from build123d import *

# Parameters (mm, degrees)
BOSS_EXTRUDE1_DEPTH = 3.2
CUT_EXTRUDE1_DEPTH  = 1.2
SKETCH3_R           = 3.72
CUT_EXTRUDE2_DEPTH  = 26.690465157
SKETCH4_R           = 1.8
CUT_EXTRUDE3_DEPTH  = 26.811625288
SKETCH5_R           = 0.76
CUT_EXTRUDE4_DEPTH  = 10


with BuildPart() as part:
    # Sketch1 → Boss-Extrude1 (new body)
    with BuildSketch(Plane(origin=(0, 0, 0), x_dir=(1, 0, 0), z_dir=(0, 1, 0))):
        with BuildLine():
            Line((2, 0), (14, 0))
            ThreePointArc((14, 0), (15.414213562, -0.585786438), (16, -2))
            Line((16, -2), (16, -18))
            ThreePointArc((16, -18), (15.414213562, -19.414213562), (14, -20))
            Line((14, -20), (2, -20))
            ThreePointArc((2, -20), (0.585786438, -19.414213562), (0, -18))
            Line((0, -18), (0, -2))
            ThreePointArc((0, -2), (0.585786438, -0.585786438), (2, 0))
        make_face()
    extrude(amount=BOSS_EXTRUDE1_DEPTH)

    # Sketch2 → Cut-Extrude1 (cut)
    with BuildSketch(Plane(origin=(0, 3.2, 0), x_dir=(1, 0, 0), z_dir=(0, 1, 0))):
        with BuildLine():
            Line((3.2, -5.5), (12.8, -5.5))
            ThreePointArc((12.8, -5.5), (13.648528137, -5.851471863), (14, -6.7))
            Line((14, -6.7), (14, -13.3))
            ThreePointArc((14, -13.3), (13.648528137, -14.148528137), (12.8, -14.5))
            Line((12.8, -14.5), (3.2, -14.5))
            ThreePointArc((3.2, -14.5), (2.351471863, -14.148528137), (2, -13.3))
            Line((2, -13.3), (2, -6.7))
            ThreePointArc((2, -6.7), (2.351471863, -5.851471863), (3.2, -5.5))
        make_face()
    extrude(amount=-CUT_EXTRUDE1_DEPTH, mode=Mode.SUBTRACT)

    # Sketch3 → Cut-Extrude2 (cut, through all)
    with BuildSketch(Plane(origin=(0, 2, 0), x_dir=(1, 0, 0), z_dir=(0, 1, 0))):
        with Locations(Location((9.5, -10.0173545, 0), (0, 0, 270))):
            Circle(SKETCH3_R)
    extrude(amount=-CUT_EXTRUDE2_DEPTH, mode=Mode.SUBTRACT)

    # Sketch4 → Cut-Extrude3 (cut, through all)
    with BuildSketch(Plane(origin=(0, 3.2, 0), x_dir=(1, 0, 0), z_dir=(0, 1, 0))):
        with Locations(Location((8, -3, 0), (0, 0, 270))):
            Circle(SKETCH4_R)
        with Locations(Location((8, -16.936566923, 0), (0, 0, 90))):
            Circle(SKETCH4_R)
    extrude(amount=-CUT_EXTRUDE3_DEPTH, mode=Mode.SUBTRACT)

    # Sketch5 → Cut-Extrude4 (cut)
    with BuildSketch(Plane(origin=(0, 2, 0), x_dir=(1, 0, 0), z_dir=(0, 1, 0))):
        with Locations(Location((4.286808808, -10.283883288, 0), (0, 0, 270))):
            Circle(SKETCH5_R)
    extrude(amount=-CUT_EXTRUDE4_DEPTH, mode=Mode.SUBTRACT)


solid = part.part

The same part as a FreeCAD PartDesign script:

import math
import FreeCAD as App
import Part
import Sketcher

doc = App.newDocument("Part")
body = doc.addObject("PartDesign::Body", "Body")

sketch1 = body.newObject("Sketcher::SketchObject", "Sketch")
sketch1.AttachmentSupport = (doc.getObject("XZ_Plane"), [""])
sketch1.MapMode = "FlatFace"
sketch1.addGeometry([
    Part.LineSegment(App.Vector(14, 0, 0), App.Vector(2, 0, 0)),
    Part.ArcOfCircle(Part.Circle(App.Vector(2, 2, 0), App.Vector(0, 0, 1), 2), math.radians(-180), math.radians(-90)),
    Part.LineSegment(App.Vector(0, 2, 0), App.Vector(0, 18, 0)),
    Part.ArcOfCircle(Part.Circle(App.Vector(2, 18, 0), App.Vector(0, 0, 1), 2), math.radians(90), math.radians(180)),
    Part.LineSegment(App.Vector(2, 20, 0), App.Vector(14, 20, 0)),
    Part.ArcOfCircle(Part.Circle(App.Vector(14, 18, 0), App.Vector(0, 0, 1), 2), math.radians(0), math.radians(90)),
    Part.LineSegment(App.Vector(16, 18, 0), App.Vector(16, 2, 0)),
    Part.ArcOfCircle(Part.Circle(App.Vector(14, 2, 0), App.Vector(0, 0, 1), 2), math.radians(-90), math.radians(0)),
], False)
sketch1.addConstraint([
    Sketcher.Constraint("Tangent", 0, 2, 1, 2),
    Sketcher.Constraint("Tangent", 1, 1, 2, 1),
    Sketcher.Constraint("Tangent", 2, 2, 3, 2),
    Sketcher.Constraint("Tangent", 3, 1, 4, 1),
    Sketcher.Constraint("Tangent", 4, 2, 5, 2),
    Sketcher.Constraint("Tangent", 5, 1, 6, 1),
    Sketcher.Constraint("Tangent", 6, 2, 7, 2),
    Sketcher.Constraint("Tangent", 7, 1, 0, 1),
    Sketcher.Constraint("Horizontal", 0),
    Sketcher.Constraint("Vertical", 2),
    Sketcher.Constraint("Horizontal", 4),
    Sketcher.Constraint("Vertical", 6),
    Sketcher.Constraint("Equal", 1, 3),
    Sketcher.Constraint("Equal", 3, 5),
    Sketcher.Constraint("Equal", 5, 7),
    Sketcher.Constraint("PointOnObject", 0, 2, -1),
    Sketcher.Constraint("PointOnObject", 1, 1, -2),
    Sketcher.Constraint("Radius", 1, 2.0),
    Sketcher.Constraint("DistanceX", 0, 2, 0, 1, 12.0),
    Sketcher.Constraint("DistanceY", 2, 1, 2, 2, 16.0),
])
pad1 = body.newObject("PartDesign::Pad", "Pad")
pad1.Profile = sketch1
pad1.Length = 3.2
pad1.Reversed = True

sketch2 = body.newObject("Sketcher::SketchObject", "Sketch001")
sketch2.AttachmentSupport = (doc.getObject("XZ_Plane"), [""])
sketch2.MapMode = "FlatFace"
sketch2.AttachmentOffset = App.Placement(App.Vector(0, 0, -3.2), App.Rotation())
sketch2.addGeometry([
    Part.LineSegment(App.Vector(12.8, 5.5, 0), App.Vector(3.2, 5.5, 0)),
    Part.ArcOfCircle(Part.Circle(App.Vector(3.2, 6.7, 0), App.Vector(0, 0, 1), 1.2), math.radians(-180), math.radians(-90)),
    Part.LineSegment(App.Vector(2, 6.7, 0), App.Vector(2, 13.3, 0)),
    Part.ArcOfCircle(Part.Circle(App.Vector(3.2, 13.3, 0), App.Vector(0, 0, 1), 1.2), math.radians(90), math.radians(180)),
    Part.LineSegment(App.Vector(3.2, 14.5, 0), App.Vector(12.8, 14.5, 0)),
    Part.ArcOfCircle(Part.Circle(App.Vector(12.8, 13.3, 0), App.Vector(0, 0, 1), 1.2), math.radians(0), math.radians(90)),
    Part.LineSegment(App.Vector(14, 13.3, 0), App.Vector(14, 6.7, 0)),
    Part.ArcOfCircle(Part.Circle(App.Vector(12.8, 6.7, 0), App.Vector(0, 0, 1), 1.2), math.radians(-90), math.radians(0)),
], False)
sketch2.addConstraint([
    Sketcher.Constraint("Tangent", 0, 2, 1, 2),
    Sketcher.Constraint("Tangent", 1, 1, 2, 1),
    Sketcher.Constraint("Tangent", 2, 2, 3, 2),
    Sketcher.Constraint("Tangent", 3, 1, 4, 1),
    Sketcher.Constraint("Tangent", 4, 2, 5, 2),
    Sketcher.Constraint("Tangent", 5, 1, 6, 1),
    Sketcher.Constraint("Tangent", 6, 2, 7, 2),
    Sketcher.Constraint("Tangent", 7, 1, 0, 1),
    Sketcher.Constraint("Horizontal", 0),
    Sketcher.Constraint("Vertical", 2),
    Sketcher.Constraint("Horizontal", 4),
    Sketcher.Constraint("Vertical", 6),
    Sketcher.Constraint("Equal", 1, 3),
    Sketcher.Constraint("Equal", 3, 5),
    Sketcher.Constraint("Equal", 5, 7),
    Sketcher.Constraint("Radius", 1, 1.2),
    Sketcher.Constraint("DistanceX", 0, 2, 0, 1, 9.6),
    Sketcher.Constraint("DistanceY", 2, 1, 2, 2, 6.6),
    Sketcher.Constraint("DistanceX", -1, 1, 1, 1, 2.0),
    Sketcher.Constraint("DistanceY", -1, 1, 1, 3, 6.7),
])
pocket1 = body.newObject("PartDesign::Pocket", "Pocket")
pocket1.Profile = sketch2
pocket1.Length = 1.2
pocket1.Reversed = True

sketch3 = body.newObject("Sketcher::SketchObject", "Sketch002")
sketch3.AttachmentSupport = (doc.getObject("XZ_Plane"), [""])
sketch3.MapMode = "FlatFace"
sketch3.AttachmentOffset = App.Placement(App.Vector(0, 0, -2), App.Rotation())
sketch3.addGeometry(Part.Circle(App.Vector(9.5, 10, 0), App.Vector(0, 0, 1), 3.7), False)
sketch3.addConstraint([
    Sketcher.Constraint("Diameter", 0, 7.44),
    Sketcher.Constraint("DistanceX", -1, 1, 0, 3, 9.5),
    Sketcher.Constraint("DistanceY", -1, 1, 0, 3, 10.017354),
])
pocket2 = body.newObject("PartDesign::Pocket", "Pocket001")
pocket2.Profile = sketch3
pocket2.Type = "ThroughAll"
pocket2.Reversed = True

sketch4 = body.newObject("Sketcher::SketchObject", "Sketch003")
sketch4.AttachmentSupport = (doc.getObject("XZ_Plane"), [""])
sketch4.MapMode = "FlatFace"
sketch4.AttachmentOffset = App.Placement(App.Vector(0, 0, -3.2), App.Rotation())
sketch4.addGeometry([
    Part.Circle(App.Vector(8, 3, 0), App.Vector(0, 0, 1), 1.8),
    Part.Circle(App.Vector(8, 16.9, 0), App.Vector(0, 0, 1), 1.8),
], False)
sketch4.addConstraint([
    Sketcher.Constraint("Equal", 0, 1),
    Sketcher.Constraint("Vertical", 0, 3, 1, 3),
    Sketcher.Constraint("Diameter", 0, 3.6),
    Sketcher.Constraint("DistanceX", -1, 1, 0, 3, 8.0),
    Sketcher.Constraint("DistanceY", -1, 1, 0, 3, 3.0),
    Sketcher.Constraint("DistanceY", -1, 1, 1, 3, 16.936567),
])
pocket3 = body.newObject("PartDesign::Pocket", "Pocket002")
pocket3.Profile = sketch4
pocket3.Type = "ThroughAll"
pocket3.Reversed = True

sketch5 = body.newObject("Sketcher::SketchObject", "Sketch004")
sketch5.AttachmentSupport = (doc.getObject("XZ_Plane"), [""])
sketch5.MapMode = "FlatFace"
sketch5.AttachmentOffset = App.Placement(App.Vector(0, 0, -2), App.Rotation())
sketch5.addGeometry(Part.Circle(App.Vector(4.3, 10.3, 0), App.Vector(0, 0, 1), 0.8), False)
sketch5.addConstraint([
    Sketcher.Constraint("Diameter", 0, 1.52),
    Sketcher.Constraint("DistanceX", -1, 1, 0, 3, 4.286809),
    Sketcher.Constraint("DistanceY", -1, 1, 0, 3, 10.283883),
])
pocket4 = body.newObject("PartDesign::Pocket", "Pocket003")
pocket4.Profile = sketch5
pocket4.Length = 10
pocket4.Reversed = True

doc.recompute()
